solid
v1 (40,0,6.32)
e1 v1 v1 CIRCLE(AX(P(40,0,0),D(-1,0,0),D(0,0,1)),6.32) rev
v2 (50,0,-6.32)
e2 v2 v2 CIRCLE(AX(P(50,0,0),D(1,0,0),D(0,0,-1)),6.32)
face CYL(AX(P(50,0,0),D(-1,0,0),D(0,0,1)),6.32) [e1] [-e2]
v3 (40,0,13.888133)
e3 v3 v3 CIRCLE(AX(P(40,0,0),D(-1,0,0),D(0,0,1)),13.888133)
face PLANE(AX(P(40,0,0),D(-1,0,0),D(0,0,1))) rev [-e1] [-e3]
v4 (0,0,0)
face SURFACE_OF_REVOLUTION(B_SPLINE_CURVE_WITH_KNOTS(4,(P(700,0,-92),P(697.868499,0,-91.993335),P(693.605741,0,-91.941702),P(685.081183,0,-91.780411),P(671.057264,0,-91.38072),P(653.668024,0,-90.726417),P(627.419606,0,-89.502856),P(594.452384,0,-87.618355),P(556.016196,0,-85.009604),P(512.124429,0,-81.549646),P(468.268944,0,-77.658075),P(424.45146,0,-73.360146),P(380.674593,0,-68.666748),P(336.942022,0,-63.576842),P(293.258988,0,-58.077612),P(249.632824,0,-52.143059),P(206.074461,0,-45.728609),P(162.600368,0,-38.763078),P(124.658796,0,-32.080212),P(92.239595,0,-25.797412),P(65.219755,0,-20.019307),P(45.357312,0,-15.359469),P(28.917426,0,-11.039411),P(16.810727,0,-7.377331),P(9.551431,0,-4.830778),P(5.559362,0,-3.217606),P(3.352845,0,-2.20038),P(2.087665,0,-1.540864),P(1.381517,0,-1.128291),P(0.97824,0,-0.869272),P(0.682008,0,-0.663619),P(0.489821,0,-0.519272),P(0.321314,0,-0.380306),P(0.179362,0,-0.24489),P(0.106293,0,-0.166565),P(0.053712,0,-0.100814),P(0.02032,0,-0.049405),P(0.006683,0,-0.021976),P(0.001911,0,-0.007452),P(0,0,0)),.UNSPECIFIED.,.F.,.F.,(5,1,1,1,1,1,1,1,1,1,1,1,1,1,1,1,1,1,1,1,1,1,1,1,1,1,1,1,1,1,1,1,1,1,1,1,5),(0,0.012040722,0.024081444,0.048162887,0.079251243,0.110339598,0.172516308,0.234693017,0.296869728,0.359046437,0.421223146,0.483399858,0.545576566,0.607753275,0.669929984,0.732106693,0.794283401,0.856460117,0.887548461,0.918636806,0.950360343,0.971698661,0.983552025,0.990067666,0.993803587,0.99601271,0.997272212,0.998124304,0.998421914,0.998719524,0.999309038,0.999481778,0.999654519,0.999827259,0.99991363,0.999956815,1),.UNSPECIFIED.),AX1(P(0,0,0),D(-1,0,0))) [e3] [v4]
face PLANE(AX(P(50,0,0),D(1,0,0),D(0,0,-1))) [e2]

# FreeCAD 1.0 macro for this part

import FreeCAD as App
import Part
import Sketcher

doc = App.newDocument("Part")
body = doc.addObject("PartDesign::Body", "Body")

sketch1 = body.newObject("Sketcher::SketchObject", "Sketch")
sketch1.AttachmentSupport = (doc.getObject("XZ_Plane"), [""])
sketch1.MapMode = "FlatFace"
sketch1.addGeometry(Part.LineSegment(App.Vector(0, 0, 0), App.Vector(700, 0, 0)), False)
sketch1.addGeometry(Part.LineSegment(App.Vector(700, 0, 0), App.Vector(700, -92, 0)), False)
sketch1.addGeometry(Part.BSplineCurve([App.Vector(0, 0, 0), App.Vector(0.001911, -0.007452, 0), App.Vector(0.006683, -0.021976, 0), App.Vector(0.02032, -0.049405, 0), App.Vector(0.053712, -0.100814, 0), App.Vector(0.106293, -0.166565, 0), App.Vector(0.179362, -0.24489, 0), App.Vector(0.321314, -0.380306, 0), App.Vector(0.489821, -0.519272, 0), App.Vector(0.682008, -0.663619, 0), App.Vector(0.97824, -0.869272, 0), App.Vector(1.381517, -1.128291, 0), App.Vector(2.087665, -1.540864, 0), App.Vector(3.352845, -2.20038, 0), App.Vector(5.559362, -3.217606, 0), App.Vector(9.551431, -4.830778, 0), App.Vector(16.810727, -7.377331, 0), App.Vector(28.917426, -11.039411, 0), App.Vector(45.357312, -15.359469, 0), App.Vector(65.219755, -20.019307, 0), App.Vector(92.239595, -25.797412, 0), App.Vector(124.658796, -32.080212, 0), App.Vector(162.600368, -38.763078, 0), App.Vector(206.074461, -45.728609, 0), App.Vector(249.632824, -52.143059, 0), App.Vector(293.258988, -58.077612, 0), App.Vector(336.942022, -63.576842, 0), App.Vector(380.674593, -68.666748, 0), App.Vector(424.45146, -73.360146, 0), App.Vector(468.268944, -77.658075, 0), App.Vector(512.124429, -81.549646, 0), App.Vector(556.016196, -85.009604, 0), App.Vector(594.452384, -87.618355, 0), App.Vector(627.419606, -89.502856, 0), App.Vector(653.668024, -90.726417, 0), App.Vector(671.057264, -91.38072, 0), App.Vector(685.081183, -91.780411, 0), App.Vector(693.605741, -91.941702, 0), App.Vector(697.868499, -91.993335, 0), App.Vector(700, -92, 0)], [5, 1, 1, 1, 1, 1, 1, 1, 1, 1, 1, 1, 1, 1, 1, 1, 1, 1, 1, 1, 1, 1, 1, 1, 1, 1, 1, 1, 1, 1, 1, 1, 1, 1, 1, 1, 5], [0, 0.000043185, 0.00008637, 0.000172741, 0.000345481, 0.000518222, 0.000690962, 0.001280476, 0.001578086, 0.001875696, 0.002727788, 0.00398729, 0.006196413, 0.009932334, 0.016447975, 0.028301339, 0.049639657, 0.081363194, 0.112451539, 0.143539883, 0.205716599, 0.267893307, 0.330070016, 0.392246725, 0.454423434, 0.516600142, 0.578776854, 0.640953563, 0.703130272, 0.765306983, 0.827483692, 0.889660402, 0.920748757, 0.951837113, 0.975918556, 0.987959278, 1], False, 4, [1, 1, 1, 1, 1, 1, 1, 1, 1, 1, 1, 1, 1, 1, 1, 1, 1, 1, 1, 1, 1, 1, 1, 1, 1, 1, 1, 1, 1, 1, 1, 1, 1, 1, 1, 1, 1, 1, 1, 1], False), False)
sketch1.addConstraint(Sketcher.Constraint("Block", 2))
sketch1.addConstraint(Sketcher.Constraint("Coincident", 0, 2, 1, 1))
sketch1.addConstraint(Sketcher.Constraint("Coincident", 1, 2, 2, 2))
sketch1.addConstraint(Sketcher.Constraint("Coincident", 2, 1, 0, 1))
sketch1.addConstraint(Sketcher.Constraint("Horizontal", 0))
sketch1.addConstraint(Sketcher.Constraint("Vertical", 1))
revolution = body.newObject("PartDesign::Revolution", "Revolution")
revolution.Profile = sketch1
revolution.ReferenceAxis = (sketch1, ["H_Axis"])
revolution.Angle = 360
body2 = doc.addObject("PartDesign::Body", "Body001")

sketch2 = body2.newObject("Sketcher::SketchObject", "Sketch001")
sketch2.AttachmentSupport = (doc.getObject("XY_Plane001"), [""])
sketch2.MapMode = "FlatFace"
sketch2.addGeometry(Part.LineSegment(App.Vector(0, 14, 0), App.Vector(0, 0, 0)), False)
sketch2.addGeometry(Part.LineSegment(App.Vector(0, 0, 0), App.Vector(40, 0, 0)), False)
sketch2.addGeometry(Part.LineSegment(App.Vector(40, 0, 0), App.Vector(40, 14, 0)), False)
sketch2.addGeometry(Part.LineSegment(App.Vector(40, 14, 0), App.Vector(0, 14, 0)), False)
sketch2.addConstraint(Sketcher.Constraint("Coincident", 0, 2, 1, 1))
sketch2.addConstraint(Sketcher.Constraint("Coincident", 1, 2, 2, 1))
sketch2.addConstraint(Sketcher.Constraint("Coincident", 2, 2, 3, 1))
sketch2.addConstraint(Sketcher.Constraint("Coincident", 3, 2, 0, 1))
sketch2.addConstraint(Sketcher.Constraint("Vertical", 0))
sketch2.addConstraint(Sketcher.Constraint("Horizontal", 1))
sketch2.addConstraint(Sketcher.Constraint("Vertical", 2))
sketch2.addConstraint(Sketcher.Constraint("Horizontal", 3))
sketch2.addConstraint(Sketcher.Constraint("Coincident", 0, 2, -1, 1))
sketch2.addConstraint(Sketcher.Constraint("DistanceX", 1, 1, 1, 2, 40.0))
sketch2.addConstraint(Sketcher.Constraint("DistanceY", 0, 2, 0, 1, 13.888133))
revolution2 = body2.newObject("PartDesign::Revolution", "Revolution001")
revolution2.Profile = sketch2
revolution2.ReferenceAxis = (sketch2, ["H_Axis"])
revolution2.Angle = 360
doc.recompute()

boolean = body2.newObject("PartDesign::Boolean", "Boolean")
boolean.Type = "Common"
boolean.addObjects([body])

sketch3 = body2.newObject("Sketcher::SketchObject", "Sketch002")
sketch3.AttachmentSupport = (doc.getObject("YZ_Plane001"), [""])
sketch3.MapMode = "FlatFace"
sketch3.AttachmentOffset = App.Placement(App.Vector(0, 0, 40), App.Rotation())
sketch3.addGeometry(Part.Circle(App.Vector(0, 0, 0), App.Vector(0, 0, 1), 6), False)
sketch3.addConstraint(Sketcher.Constraint("Coincident", 0, 3, -1, 1))
sketch3.addConstraint(Sketcher.Constraint("Diameter", 0, 12.64))
pad1 = body2.newObject("PartDesign::Pad", "Pad")
pad1.Profile = sketch3
pad1.Length = 10

doc.recompute()
